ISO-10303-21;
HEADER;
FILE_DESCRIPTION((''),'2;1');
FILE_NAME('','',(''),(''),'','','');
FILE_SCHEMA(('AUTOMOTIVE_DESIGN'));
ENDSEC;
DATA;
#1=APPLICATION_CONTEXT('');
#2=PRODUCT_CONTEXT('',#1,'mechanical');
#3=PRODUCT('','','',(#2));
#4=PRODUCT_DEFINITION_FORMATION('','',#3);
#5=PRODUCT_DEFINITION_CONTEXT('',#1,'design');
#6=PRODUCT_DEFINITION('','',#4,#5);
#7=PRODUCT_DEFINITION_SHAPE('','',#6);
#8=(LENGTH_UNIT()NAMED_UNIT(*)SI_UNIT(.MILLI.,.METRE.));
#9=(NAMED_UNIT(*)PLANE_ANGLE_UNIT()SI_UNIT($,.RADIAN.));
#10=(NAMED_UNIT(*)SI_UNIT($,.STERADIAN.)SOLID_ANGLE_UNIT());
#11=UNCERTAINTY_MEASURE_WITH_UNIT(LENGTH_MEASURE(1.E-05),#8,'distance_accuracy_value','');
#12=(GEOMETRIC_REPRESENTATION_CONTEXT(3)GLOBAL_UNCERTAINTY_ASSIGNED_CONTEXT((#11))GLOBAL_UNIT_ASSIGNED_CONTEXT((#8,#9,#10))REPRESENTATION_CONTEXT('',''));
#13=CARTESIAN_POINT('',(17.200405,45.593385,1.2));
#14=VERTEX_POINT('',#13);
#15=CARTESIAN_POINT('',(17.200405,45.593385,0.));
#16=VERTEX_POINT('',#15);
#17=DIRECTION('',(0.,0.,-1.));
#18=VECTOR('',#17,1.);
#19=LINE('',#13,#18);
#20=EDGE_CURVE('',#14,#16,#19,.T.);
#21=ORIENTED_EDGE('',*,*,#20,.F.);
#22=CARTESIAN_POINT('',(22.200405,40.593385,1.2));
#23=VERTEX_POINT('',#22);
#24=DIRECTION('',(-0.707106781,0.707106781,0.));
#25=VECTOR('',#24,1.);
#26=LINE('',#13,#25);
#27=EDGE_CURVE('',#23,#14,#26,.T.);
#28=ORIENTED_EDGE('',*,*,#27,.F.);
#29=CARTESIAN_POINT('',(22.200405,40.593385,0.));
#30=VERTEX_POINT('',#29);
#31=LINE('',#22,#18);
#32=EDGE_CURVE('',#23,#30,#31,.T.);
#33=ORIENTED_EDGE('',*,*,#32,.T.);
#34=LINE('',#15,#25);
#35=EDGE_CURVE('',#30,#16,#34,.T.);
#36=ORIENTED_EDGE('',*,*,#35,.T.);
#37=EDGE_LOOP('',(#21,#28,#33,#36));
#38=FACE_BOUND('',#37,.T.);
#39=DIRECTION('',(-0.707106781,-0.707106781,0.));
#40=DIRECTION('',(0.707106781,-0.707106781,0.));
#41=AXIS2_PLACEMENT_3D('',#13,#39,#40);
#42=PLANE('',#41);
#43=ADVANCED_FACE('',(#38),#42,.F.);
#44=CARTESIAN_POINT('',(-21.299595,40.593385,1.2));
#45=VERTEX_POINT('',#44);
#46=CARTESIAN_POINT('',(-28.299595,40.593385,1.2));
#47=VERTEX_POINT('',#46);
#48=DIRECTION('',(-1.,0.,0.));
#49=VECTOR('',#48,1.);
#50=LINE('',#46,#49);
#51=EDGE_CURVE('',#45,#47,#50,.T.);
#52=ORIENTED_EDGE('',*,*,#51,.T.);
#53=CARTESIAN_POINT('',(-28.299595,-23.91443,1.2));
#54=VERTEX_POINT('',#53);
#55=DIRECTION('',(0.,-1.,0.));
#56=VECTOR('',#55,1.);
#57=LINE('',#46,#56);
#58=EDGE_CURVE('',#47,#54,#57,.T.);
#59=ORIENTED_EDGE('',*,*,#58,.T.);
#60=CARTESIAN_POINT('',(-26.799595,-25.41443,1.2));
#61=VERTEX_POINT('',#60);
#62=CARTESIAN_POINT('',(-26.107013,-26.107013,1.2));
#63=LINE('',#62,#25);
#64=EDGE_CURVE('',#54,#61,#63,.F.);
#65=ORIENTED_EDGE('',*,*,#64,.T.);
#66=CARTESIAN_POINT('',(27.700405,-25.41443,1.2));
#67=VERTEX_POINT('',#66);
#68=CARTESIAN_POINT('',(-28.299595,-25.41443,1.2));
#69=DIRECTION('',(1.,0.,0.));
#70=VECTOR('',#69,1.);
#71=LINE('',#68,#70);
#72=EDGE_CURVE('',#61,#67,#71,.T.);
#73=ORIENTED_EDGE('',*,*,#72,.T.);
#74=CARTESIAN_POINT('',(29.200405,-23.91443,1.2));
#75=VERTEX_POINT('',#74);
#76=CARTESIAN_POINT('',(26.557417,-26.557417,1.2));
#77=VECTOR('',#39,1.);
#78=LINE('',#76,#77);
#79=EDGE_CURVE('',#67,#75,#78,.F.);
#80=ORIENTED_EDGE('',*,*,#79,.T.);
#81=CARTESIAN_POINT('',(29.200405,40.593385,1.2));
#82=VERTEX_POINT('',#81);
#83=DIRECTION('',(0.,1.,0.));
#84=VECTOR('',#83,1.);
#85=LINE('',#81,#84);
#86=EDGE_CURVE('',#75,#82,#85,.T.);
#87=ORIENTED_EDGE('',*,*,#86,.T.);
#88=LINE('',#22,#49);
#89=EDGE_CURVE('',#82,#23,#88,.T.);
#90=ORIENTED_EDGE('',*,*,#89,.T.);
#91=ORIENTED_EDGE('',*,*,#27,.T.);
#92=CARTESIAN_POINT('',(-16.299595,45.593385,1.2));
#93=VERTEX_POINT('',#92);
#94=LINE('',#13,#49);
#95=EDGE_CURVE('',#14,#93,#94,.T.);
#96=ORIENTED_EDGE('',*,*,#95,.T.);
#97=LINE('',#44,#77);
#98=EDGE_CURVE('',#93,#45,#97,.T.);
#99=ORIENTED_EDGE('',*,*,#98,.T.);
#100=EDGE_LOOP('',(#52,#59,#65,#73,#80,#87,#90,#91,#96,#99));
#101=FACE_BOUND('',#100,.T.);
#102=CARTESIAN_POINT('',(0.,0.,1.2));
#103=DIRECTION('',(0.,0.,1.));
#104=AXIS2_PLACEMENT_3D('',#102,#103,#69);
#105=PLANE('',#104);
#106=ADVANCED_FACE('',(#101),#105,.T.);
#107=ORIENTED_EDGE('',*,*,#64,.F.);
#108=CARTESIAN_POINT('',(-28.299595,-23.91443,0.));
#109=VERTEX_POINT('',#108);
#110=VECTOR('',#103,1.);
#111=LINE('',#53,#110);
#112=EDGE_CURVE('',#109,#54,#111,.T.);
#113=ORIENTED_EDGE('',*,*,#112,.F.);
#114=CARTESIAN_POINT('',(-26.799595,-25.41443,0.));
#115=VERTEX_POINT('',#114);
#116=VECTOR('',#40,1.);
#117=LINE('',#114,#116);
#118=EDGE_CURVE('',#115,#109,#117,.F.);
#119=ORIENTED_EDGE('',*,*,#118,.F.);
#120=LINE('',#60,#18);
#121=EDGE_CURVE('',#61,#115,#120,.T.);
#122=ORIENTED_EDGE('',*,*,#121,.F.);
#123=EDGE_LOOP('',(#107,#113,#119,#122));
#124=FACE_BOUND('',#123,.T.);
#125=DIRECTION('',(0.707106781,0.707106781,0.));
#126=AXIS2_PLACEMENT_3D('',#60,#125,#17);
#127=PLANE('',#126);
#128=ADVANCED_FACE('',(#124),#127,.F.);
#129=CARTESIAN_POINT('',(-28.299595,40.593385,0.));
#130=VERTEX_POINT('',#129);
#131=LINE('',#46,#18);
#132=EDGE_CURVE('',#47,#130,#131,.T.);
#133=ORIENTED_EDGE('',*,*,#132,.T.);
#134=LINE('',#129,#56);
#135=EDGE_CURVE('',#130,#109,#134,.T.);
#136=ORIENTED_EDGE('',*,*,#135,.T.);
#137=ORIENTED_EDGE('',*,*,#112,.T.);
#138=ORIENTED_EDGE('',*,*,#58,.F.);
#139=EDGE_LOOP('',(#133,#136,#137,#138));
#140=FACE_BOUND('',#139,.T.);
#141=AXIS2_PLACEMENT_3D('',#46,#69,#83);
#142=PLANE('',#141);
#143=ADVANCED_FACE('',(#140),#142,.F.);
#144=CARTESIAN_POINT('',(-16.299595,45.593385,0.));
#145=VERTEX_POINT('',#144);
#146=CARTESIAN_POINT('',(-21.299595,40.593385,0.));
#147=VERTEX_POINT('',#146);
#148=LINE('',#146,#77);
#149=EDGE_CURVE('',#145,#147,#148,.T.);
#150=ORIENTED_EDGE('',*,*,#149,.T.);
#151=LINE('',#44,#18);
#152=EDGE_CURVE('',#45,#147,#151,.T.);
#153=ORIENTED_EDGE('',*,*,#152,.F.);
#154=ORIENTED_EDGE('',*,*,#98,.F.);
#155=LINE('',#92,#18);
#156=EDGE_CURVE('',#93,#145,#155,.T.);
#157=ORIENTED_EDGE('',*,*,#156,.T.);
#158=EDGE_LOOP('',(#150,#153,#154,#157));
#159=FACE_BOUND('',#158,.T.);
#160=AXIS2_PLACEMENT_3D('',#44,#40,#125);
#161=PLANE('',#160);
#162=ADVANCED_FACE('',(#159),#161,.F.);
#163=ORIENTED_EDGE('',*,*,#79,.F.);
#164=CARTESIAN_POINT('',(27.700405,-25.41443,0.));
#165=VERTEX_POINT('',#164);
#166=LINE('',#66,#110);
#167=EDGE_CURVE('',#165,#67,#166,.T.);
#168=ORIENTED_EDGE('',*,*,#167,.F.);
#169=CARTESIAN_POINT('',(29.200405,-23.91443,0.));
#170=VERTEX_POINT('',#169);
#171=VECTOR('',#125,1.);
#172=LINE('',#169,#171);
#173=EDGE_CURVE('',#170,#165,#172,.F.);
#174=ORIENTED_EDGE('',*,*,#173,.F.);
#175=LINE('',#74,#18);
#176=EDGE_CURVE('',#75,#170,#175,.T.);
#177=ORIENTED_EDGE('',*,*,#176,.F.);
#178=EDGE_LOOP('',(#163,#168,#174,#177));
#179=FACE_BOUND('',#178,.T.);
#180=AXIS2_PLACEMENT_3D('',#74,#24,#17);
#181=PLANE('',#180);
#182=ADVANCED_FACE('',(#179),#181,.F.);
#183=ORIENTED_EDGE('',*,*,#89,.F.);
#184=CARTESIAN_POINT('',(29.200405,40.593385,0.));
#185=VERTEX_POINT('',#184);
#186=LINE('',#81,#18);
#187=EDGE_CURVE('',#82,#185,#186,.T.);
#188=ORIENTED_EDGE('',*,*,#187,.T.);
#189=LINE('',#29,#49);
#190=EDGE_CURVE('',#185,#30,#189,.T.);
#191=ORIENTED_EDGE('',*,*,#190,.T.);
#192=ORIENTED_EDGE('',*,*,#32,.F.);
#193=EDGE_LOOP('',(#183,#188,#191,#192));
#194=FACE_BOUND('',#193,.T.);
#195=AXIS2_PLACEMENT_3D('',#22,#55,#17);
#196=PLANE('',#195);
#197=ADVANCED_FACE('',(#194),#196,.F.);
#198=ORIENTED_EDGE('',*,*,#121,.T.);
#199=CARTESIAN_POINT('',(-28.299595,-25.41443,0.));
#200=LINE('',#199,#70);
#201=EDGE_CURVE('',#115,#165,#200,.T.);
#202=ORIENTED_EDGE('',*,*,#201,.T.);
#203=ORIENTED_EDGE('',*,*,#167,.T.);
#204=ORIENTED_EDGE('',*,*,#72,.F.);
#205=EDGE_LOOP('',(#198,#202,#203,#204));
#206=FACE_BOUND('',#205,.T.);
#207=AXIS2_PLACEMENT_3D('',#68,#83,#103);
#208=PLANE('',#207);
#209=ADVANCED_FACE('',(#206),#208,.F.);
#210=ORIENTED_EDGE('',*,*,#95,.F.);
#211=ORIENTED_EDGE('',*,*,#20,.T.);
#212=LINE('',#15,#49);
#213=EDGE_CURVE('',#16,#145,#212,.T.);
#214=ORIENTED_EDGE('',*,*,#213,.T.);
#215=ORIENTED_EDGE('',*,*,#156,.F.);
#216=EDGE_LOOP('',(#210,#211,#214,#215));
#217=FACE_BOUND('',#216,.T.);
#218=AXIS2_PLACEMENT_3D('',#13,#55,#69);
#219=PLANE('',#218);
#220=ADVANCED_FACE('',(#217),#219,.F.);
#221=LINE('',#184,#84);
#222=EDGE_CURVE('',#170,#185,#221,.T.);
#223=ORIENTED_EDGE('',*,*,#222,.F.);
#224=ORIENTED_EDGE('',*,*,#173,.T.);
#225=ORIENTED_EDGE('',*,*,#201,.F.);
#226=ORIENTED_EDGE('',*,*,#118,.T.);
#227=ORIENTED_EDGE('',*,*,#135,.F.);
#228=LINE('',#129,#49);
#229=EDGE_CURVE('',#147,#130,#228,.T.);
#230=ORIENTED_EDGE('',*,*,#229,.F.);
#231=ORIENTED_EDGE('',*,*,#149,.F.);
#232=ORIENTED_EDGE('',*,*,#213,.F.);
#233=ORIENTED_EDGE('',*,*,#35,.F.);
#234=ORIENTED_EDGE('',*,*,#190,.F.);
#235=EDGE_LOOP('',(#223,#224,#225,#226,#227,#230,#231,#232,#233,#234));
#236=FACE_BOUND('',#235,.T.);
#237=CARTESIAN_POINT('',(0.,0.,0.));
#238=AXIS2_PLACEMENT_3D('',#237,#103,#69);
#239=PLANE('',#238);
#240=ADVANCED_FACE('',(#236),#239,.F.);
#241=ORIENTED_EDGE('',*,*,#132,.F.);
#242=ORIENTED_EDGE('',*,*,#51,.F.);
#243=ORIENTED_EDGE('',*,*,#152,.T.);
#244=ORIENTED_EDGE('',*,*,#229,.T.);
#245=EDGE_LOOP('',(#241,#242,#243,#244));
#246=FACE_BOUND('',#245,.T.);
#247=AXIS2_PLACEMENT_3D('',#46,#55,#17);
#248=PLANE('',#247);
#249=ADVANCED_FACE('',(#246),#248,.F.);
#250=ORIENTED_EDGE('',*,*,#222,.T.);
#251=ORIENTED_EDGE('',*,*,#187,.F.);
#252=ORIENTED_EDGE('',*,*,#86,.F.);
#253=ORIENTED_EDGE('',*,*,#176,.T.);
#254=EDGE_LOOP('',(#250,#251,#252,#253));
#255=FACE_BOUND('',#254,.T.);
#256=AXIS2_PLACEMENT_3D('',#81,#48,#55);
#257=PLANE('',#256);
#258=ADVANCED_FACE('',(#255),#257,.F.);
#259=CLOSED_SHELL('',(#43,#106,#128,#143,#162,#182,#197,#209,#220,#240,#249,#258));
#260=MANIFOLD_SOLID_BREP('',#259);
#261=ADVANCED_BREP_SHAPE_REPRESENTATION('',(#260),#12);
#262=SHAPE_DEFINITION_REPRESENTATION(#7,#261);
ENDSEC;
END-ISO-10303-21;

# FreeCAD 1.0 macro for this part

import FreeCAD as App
import Part
import Sketcher

V = App.Vector
Q = App.Units.Quantity


def edges_at(feature, points):
    """Names of the edges that pass closest to the given points."""
    edges = feature.Shape.Edges
    near = lambda p: min(range(len(edges)), key=lambda i: edges[i].distToShape(Part.Vertex(*p))[0])
    return sorted({f"Edge{near(p) + 1}" for p in points})


def add_polygon(sketch, points):
    """Adds a closed chain of lines whose ends are joined by coincident constraints."""
    first, n = sketch.GeometryCount, len(points)
    for a, b in zip(points, points[1:] + points[:1]):
        sketch.addGeometry(Part.LineSegment(App.Vector(*a, 0), App.Vector(*b, 0)), False)
    for i in range(n):
        sketch.addConstraint(Sketcher.Constraint("Coincident", first + i, 2, first + (i + 1) % n, 1))

doc = App.newDocument("Part")
params = doc.addObject("Spreadsheet::Sheet", "Params")
for row, (alias, value) in enumerate([
    ("sketch1_width", "7 mm"),
    ("sketch1_width2", "57.5 mm"),
    ("sketch1_width3", "33.5 mm"),
    ("pad1_length", "1.2 mm"),
    ("chamfer_size", "1.5 mm"),
], start=1):
    params.set(f"A{row}", alias)
    params.set(f"B{row}", "=" + value)
    params.setAlias(f"B{row}", alias)

body = doc.addObject("PartDesign::Body", "Body")

# Sketch on XY plane
sketch1 = body.newObject("Sketcher::SketchObject", "Sketch")
sketch1.AttachmentSupport = (doc.getObject("XY_Plane"), [""])
sketch1.MapMode = "FlatFace"
add_polygon(sketch1, [(-16, 46), (-21, 41), (-28, 41), (-28, -25), (29, -25), (29, 41), (22, 41), (17, 46)])  # lines 0-7
sketch1.addConstraint(Sketcher.Constraint("Horizontal", 1))
sketch1.addConstraint(Sketcher.Constraint("Vertical", 2))
sketch1.addConstraint(Sketcher.Constraint("Horizontal", 3))
sketch1.addConstraint(Sketcher.Constraint("Vertical", 4))
sketch1.addConstraint(Sketcher.Constraint("Horizontal", 5))
sketch1.addConstraint(Sketcher.Constraint("Horizontal", 7))
sketch1.addConstraint(Sketcher.Constraint("Perpendicular", 0, 6))
sketch1.addConstraint(Sketcher.Constraint("Horizontal", 1, 2, 4, 2))
sketch1.addConstraint(Sketcher.Constraint("Equal", 1, 5))
sketch1.addConstraint(Sketcher.Constraint("Equal", 0, 6))
sketch1.addConstraint(Sketcher.Constraint("DistanceX", 1, 2, 1, 1, Q("7 mm")))
sketch1.addConstraint(Sketcher.Constraint("DistanceX", 3, 1, 3, 2, Q("57.5 mm")))
sketch1.addConstraint(Sketcher.Constraint("DistanceX", 7, 2, 7, 1, Q("33.5 mm")))
sketch1.addConstraint(Sketcher.Constraint("DistanceY", 2, 2, 2, 1, Q("66.007814 mm")))
sketch1.addConstraint(Sketcher.Constraint("DistanceY", 2, 2, -1, 1, Q("25.41443 mm")))
sketch1.addConstraint(Sketcher.Constraint("DistanceX", 0, 2, -1, 1, Q("21.299595 mm")))
sketch1.setExpression("Constraints[18]", "Params.sketch1_width")
sketch1.setExpression("Constraints[19]", "Params.sketch1_width2")
sketch1.setExpression("Constraints[20]", "Params.sketch1_width3")
pad1 = body.newObject("PartDesign::Pad", "Pad")
pad1.Profile = sketch1
pad1.setExpression("Length", "Params.pad1_length")
doc.recompute()

chamfer = body.newObject("PartDesign::Chamfer", "Chamfer")
chamfer.Base = (pad1, edges_at(pad1, [(29.2, -25.414, 0.6), (-28.3, -25.414, 0.6)]))
chamfer.setExpression("Size", "Params.chamfer_size")

doc.recompute()
